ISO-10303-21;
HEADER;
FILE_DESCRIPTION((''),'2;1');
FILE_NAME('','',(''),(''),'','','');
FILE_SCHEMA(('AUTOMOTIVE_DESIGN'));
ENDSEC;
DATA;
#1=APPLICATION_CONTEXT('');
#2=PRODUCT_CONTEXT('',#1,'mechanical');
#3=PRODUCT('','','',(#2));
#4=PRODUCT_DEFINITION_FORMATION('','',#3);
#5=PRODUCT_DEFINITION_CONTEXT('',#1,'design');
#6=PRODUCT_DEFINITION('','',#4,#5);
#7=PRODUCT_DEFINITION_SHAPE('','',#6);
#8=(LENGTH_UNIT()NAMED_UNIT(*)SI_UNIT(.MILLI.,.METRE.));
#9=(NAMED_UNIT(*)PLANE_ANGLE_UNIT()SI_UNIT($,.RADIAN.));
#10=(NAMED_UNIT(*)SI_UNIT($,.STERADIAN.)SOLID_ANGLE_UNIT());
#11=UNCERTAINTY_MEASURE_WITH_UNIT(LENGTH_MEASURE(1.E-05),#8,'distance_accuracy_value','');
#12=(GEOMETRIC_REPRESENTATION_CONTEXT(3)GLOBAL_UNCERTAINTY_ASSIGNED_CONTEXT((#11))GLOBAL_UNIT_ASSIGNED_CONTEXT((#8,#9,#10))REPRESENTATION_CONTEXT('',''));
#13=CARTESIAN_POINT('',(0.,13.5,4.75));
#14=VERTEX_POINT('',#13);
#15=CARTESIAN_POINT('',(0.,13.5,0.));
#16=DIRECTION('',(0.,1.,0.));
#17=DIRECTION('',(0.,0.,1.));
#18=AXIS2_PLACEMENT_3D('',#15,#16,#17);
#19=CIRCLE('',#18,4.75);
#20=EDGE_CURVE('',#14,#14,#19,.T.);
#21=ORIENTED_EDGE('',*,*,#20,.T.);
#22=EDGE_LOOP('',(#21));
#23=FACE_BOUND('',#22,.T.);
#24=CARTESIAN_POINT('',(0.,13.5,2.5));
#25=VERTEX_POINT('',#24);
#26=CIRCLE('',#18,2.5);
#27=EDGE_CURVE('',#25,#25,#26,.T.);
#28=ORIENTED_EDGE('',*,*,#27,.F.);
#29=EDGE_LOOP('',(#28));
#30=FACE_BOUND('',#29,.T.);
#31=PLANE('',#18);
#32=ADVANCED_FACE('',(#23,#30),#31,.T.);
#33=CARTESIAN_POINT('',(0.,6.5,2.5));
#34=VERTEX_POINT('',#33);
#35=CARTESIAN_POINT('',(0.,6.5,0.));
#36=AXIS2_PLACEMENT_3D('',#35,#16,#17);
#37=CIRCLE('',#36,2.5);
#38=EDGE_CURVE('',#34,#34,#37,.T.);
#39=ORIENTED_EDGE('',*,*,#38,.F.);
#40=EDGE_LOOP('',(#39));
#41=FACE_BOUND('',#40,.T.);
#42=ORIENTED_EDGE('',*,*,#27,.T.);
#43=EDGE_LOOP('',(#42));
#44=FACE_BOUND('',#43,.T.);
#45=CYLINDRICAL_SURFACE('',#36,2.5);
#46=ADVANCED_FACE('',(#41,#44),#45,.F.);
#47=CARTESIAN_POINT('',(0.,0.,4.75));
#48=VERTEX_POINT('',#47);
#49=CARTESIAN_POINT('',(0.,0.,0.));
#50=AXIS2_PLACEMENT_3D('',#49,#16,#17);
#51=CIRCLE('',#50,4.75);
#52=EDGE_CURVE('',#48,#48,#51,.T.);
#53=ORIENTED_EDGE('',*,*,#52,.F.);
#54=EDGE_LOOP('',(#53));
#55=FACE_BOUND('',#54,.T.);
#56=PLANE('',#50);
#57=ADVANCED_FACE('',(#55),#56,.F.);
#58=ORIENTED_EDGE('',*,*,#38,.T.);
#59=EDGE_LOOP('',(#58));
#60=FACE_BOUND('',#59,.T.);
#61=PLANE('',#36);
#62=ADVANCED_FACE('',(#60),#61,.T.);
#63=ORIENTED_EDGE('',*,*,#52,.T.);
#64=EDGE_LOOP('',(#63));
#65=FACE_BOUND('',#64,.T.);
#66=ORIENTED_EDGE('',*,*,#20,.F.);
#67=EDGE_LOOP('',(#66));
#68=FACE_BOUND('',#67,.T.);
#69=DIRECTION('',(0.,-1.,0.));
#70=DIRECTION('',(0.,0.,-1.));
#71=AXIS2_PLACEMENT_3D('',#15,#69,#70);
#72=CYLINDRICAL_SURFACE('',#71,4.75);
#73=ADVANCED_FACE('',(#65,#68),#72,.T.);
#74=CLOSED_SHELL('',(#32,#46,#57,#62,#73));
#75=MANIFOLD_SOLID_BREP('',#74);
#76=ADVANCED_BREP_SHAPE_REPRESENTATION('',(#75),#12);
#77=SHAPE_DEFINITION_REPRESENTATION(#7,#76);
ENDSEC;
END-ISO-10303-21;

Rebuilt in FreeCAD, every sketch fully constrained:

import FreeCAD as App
import Part
import Sketcher

doc = App.newDocument("Part")
body = doc.addObject("PartDesign::Body", "Body")

# Sketch on XZ plane
sketch1 = body.newObject("Sketcher::SketchObject", "Sketch")
sketch1.AttachmentSupport = (doc.getObject("XZ_Plane"), [""])
sketch1.MapMode = "FlatFace"
sketch1.addGeometry(Part.Circle(App.Vector(0, 0, 0), App.Vector(0, 0, 1), 4.75), False)
sketch1.addConstraint([
    Sketcher.Constraint("Coincident", 0, 3, -1, 1),
    Sketcher.Constraint("Diameter", 0, 9.5),
])
pad1 = body.newObject("PartDesign::Pad", "Pad")
pad1.Profile = sketch1
pad1.Length = 13.5
pad1.Reversed = True

# Sketch on XZ plane
sketch2 = body.newObject("Sketcher::SketchObject", "Sketch001")
sketch2.AttachmentSupport = (doc.getObject("XZ_Plane"), [""])
sketch2.MapMode = "FlatFace"
sketch2.AttachmentOffset = App.Placement(App.Vector(0, 0, -13.5), App.Rotation())
sketch2.addGeometry(Part.Circle(App.Vector(0, 0, 0), App.Vector(0, 0, 1), 2.5), False)
sketch2.addConstraint([
    Sketcher.Constraint("Coincident", 0, 3, -1, 1),
    Sketcher.Constraint("Diameter", 0, 5.0),
])
pocket1 = body.newObject("PartDesign::Pocket", "Pocket")
pocket1.Profile = sketch2
pocket1.Length = 7
pocket1.Reversed = True

doc.recompute()
